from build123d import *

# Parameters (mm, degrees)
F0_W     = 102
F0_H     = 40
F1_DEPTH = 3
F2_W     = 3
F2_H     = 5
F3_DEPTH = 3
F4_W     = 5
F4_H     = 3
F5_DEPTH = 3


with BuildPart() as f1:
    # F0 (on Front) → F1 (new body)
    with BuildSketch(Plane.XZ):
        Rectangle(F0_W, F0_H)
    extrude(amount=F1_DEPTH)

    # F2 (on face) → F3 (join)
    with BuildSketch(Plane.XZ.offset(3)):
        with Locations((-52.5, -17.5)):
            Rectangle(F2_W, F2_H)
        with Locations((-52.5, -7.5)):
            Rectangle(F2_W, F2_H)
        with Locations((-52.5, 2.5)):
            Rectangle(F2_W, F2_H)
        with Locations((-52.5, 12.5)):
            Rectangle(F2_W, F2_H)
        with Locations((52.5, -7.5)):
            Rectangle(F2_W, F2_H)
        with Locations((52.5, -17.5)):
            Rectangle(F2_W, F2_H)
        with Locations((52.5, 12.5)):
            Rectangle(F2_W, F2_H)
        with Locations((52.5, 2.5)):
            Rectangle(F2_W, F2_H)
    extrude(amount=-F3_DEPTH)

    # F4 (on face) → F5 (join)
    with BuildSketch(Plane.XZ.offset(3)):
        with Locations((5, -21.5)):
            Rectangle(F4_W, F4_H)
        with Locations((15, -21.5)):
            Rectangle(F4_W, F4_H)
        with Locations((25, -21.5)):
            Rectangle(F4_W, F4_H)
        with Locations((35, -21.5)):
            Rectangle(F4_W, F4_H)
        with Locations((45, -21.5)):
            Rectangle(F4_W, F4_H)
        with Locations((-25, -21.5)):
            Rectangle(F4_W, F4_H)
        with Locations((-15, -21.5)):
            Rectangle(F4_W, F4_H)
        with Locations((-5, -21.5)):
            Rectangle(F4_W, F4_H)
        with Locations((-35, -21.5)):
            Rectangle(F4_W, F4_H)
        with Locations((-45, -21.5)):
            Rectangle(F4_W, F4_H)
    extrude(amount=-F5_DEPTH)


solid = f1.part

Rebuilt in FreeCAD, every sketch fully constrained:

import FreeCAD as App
import Part
import Sketcher
from FreeCAD import Vector

doc = App.newDocument("Part")
body = doc.addObject("PartDesign::Body", "Body")

# Sketch on XZ plane
sketch1 = body.newObject("Sketcher::SketchObject", "Sketch")
sketch1.AttachmentSupport = (doc.getObject("XZ_Plane"), [""])
sketch1.MapMode = "FlatFace"
sketch1.addGeometry([
    Part.LineSegment(Vector(-51, 20, 0), Vector(-51, -20, 0)),
    Part.LineSegment(Vector(-51, -20, 0), Vector(51, -20, 0)),
    Part.LineSegment(Vector(51, -20, 0), Vector(51, 20, 0)),
    Part.LineSegment(Vector(51, 20, 0), Vector(-51, 20, 0)),
], False)
sketch1.addConstraint([
    Sketcher.Constraint("Coincident", 0, 2, 1, 1),
    Sketcher.Constraint("Coincident", 1, 2, 2, 1),
    Sketcher.Constraint("Coincident", 2, 2, 3, 1),
    Sketcher.Constraint("Coincident", 3, 2, 0, 1),
    Sketcher.Constraint("Vertical", 0),
    Sketcher.Constraint("Horizontal", 1),
    Sketcher.Constraint("Vertical", 2),
    Sketcher.Constraint("Horizontal", 3),
    Sketcher.Constraint("Symmetric", 0, 2, 2, 2, -1, 1),
    Sketcher.Constraint("DistanceX", 1, 1, 1, 2, 102.0),
    Sketcher.Constraint("DistanceY", 0, 2, 0, 1, 40.0),
])
pad1 = body.newObject("PartDesign::Pad", "Pad")
pad1.Profile = sketch1
pad1.Length = 3

# Sketch on XZ plane
sketch2 = body.newObject("Sketcher::SketchObject", "Sketch001")
sketch2.AttachmentSupport = (doc.getObject("XZ_Plane"), [""])
sketch2.MapMode = "FlatFace"
sketch2.AttachmentOffset = App.Placement(Vector(0, 0, 3), App.Rotation())
sketch2.addGeometry([
    Part.LineSegment(Vector(-54, -15, 0), Vector(-54, -20, 0)),  # 0
    Part.LineSegment(Vector(-54, -20, 0), Vector(-51, -20, 0)),  # 1
    Part.LineSegment(Vector(-51, -20, 0), Vector(-51, -15, 0)),  # 2
    Part.LineSegment(Vector(-51, -15, 0), Vector(-54, -15, 0)),  # 3
    Part.LineSegment(Vector(-54, -5, 0), Vector(-54, -10, 0)),  # 4
    Part.LineSegment(Vector(-54, -10, 0), Vector(-51, -10, 0)),  # 5
    Part.LineSegment(Vector(-51, -10, 0), Vector(-51, -5, 0)),  # 6
    Part.LineSegment(Vector(-51, -5, 0), Vector(-54, -5, 0)),  # 7
    Part.LineSegment(Vector(-54, 5, 0), Vector(-54, 0, 0)),  # 8
    Part.LineSegment(Vector(-54, 0, 0), Vector(-51, 0, 0)),  # 9
    Part.LineSegment(Vector(-51, 0, 0), Vector(-51, 5, 0)),  # 10
    Part.LineSegment(Vector(-51, 5, 0), Vector(-54, 5, 0)),  # 11
    Part.LineSegment(Vector(-54, 15, 0), Vector(-54, 10, 0)),  # 12
    Part.LineSegment(Vector(-54, 10, 0), Vector(-51, 10, 0)),  # 13
    Part.LineSegment(Vector(-51, 10, 0), Vector(-51, 15, 0)),  # 14
    Part.LineSegment(Vector(-51, 15, 0), Vector(-54, 15, 0)),  # 15
    Part.LineSegment(Vector(51, -5, 0), Vector(51, -10, 0)),  # 16
    Part.LineSegment(Vector(51, -10, 0), Vector(54, -10, 0)),  # 17
    Part.LineSegment(Vector(54, -10, 0), Vector(54, -5, 0)),  # 18
    Part.LineSegment(Vector(54, -5, 0), Vector(51, -5, 0)),  # 19
    Part.LineSegment(Vector(51, -15, 0), Vector(51, -20, 0)),  # 20
    Part.LineSegment(Vector(51, -20, 0), Vector(54, -20, 0)),  # 21
    Part.LineSegment(Vector(54, -20, 0), Vector(54, -15, 0)),  # 22
    Part.LineSegment(Vector(54, -15, 0), Vector(51, -15, 0)),  # 23
    Part.LineSegment(Vector(51, 15, 0), Vector(51, 10, 0)),  # 24
    Part.LineSegment(Vector(51, 10, 0), Vector(54, 10, 0)),  # 25
    Part.LineSegment(Vector(54, 10, 0), Vector(54, 15, 0)),  # 26
    Part.LineSegment(Vector(54, 15, 0), Vector(51, 15, 0)),  # 27
    Part.LineSegment(Vector(51, 5, 0), Vector(51, 0, 0)),  # 28
    Part.LineSegment(Vector(51, 0, 0), Vector(54, 0, 0)),  # 29
    Part.LineSegment(Vector(54, 0, 0), Vector(54, 5, 0)),  # 30
    Part.LineSegment(Vector(54, 5, 0), Vector(51, 5, 0)),  # 31
], False)
sketch2.addConstraint([
    Sketcher.Constraint("Coincident", 0, 2, 1, 1),
    Sketcher.Constraint("Coincident", 1, 2, 2, 1),
    Sketcher.Constraint("Coincident", 2, 2, 3, 1),
    Sketcher.Constraint("Coincident", 3, 2, 0, 1),
    Sketcher.Constraint("Coincident", 4, 2, 5, 1),
    Sketcher.Constraint("Coincident", 5, 2, 6, 1),
    Sketcher.Constraint("Coincident", 6, 2, 7, 1),
    Sketcher.Constraint("Coincident", 7, 2, 4, 1),
    Sketcher.Constraint("Coincident", 8, 2, 9, 1),
    Sketcher.Constraint("Coincident", 9, 2, 10, 1),
    Sketcher.Constraint("Coincident", 10, 2, 11, 1),
    Sketcher.Constraint("Coincident", 11, 2, 8, 1),
    Sketcher.Constraint("Coincident", 12, 2, 13, 1),
    Sketcher.Constraint("Coincident", 13, 2, 14, 1),
    Sketcher.Constraint("Coincident", 14, 2, 15, 1),
    Sketcher.Constraint("Coincident", 15, 2, 12, 1),
    Sketcher.Constraint("Coincident", 16, 2, 17, 1),
    Sketcher.Constraint("Coincident", 17, 2, 18, 1),
    Sketcher.Constraint("Coincident", 18, 2, 19, 1),
    Sketcher.Constraint("Coincident", 19, 2, 16, 1),
    Sketcher.Constraint("Coincident", 20, 2, 21, 1),
    Sketcher.Constraint("Coincident", 21, 2, 22, 1),
    Sketcher.Constraint("Coincident", 22, 2, 23, 1),
    Sketcher.Constraint("Coincident", 23, 2, 20, 1),
    Sketcher.Constraint("Coincident", 24, 2, 25, 1),
    Sketcher.Constraint("Coincident", 25, 2, 26, 1),
    Sketcher.Constraint("Coincident", 26, 2, 27, 1),
    Sketcher.Constraint("Coincident", 27, 2, 24, 1),
    Sketcher.Constraint("Coincident", 28, 2, 29, 1),
    Sketcher.Constraint("Coincident", 29, 2, 30, 1),
    Sketcher.Constraint("Coincident", 30, 2, 31, 1),
    Sketcher.Constraint("Coincident", 31, 2, 28, 1),
    Sketcher.Constraint("Vertical", 0),
    Sketcher.Constraint("Horizontal", 1),
    Sketcher.Constraint("Vertical", 2),
    Sketcher.Constraint("Horizontal", 3),
    Sketcher.Constraint("Vertical", 4),
    Sketcher.Constraint("Horizontal", 5),
    Sketcher.Constraint("Vertical", 6),
    Sketcher.Constraint("Horizontal", 7),
    Sketcher.Constraint("Vertical", 8),
    Sketcher.Constraint("Horizontal", 9),
    Sketcher.Constraint("Vertical", 10),
    Sketcher.Constraint("Horizontal", 11),
    Sketcher.Constraint("Vertical", 12),
    Sketcher.Constraint("Horizontal", 13),
    Sketcher.Constraint("Vertical", 14),
    Sketcher.Constraint("Horizontal", 15),
    Sketcher.Constraint("Vertical", 16),
    Sketcher.Constraint("Horizontal", 17),
    Sketcher.Constraint("Vertical", 18),
    Sketcher.Constraint("Horizontal", 19),
    Sketcher.Constraint("Vertical", 20),
    Sketcher.Constraint("Horizontal", 21),
    Sketcher.Constraint("Vertical", 22),
    Sketcher.Constraint("Horizontal", 23),
    Sketcher.Constraint("Vertical", 24),
    Sketcher.Constraint("Horizontal", 25),
    Sketcher.Constraint("Vertical", 26),
    Sketcher.Constraint("Horizontal", 27),
    Sketcher.Constraint("Vertical", 28),
    Sketcher.Constraint("Horizontal", 29),
    Sketcher.Constraint("Vertical", 30),
    Sketcher.Constraint("Horizontal", 31),
    Sketcher.Constraint("Symmetric", 13, 2, 16, 2, -1, 1),
    Sketcher.Constraint("Symmetric", 11, 2, 18, 2, -1, 1),
    Sketcher.Constraint("Symmetric", 15, 2, 22, 2, -1, 1),
    Sketcher.Constraint("Symmetric", 5, 2, 24, 2, -1, 1),
    Sketcher.Constraint("Symmetric", 3, 2, 26, 2, -1, 1),
    Sketcher.Constraint("Symmetric", 9, 2, 28, 2, -1, 1),
    Sketcher.Constraint("Symmetric", 7, 2, 30, 2, -1, 1),
    Sketcher.Constraint("Symmetric", 5, 2, 16, 2, -2),
    Sketcher.Constraint("Symmetric", 7, 2, 18, 2, -2),
    Sketcher.Constraint("Symmetric", 1, 2, 20, 2, -2),
    Sketcher.Constraint("Symmetric", 3, 2, 22, 2, -2),
    Sketcher.Constraint("PointOnObject", 8, 2, -1),
    Sketcher.Constraint("Vertical", 3, 2, 4, 2),
    Sketcher.Constraint("Vertical", 2, 2, 5, 2),
    Sketcher.Constraint("Vertical", 6, 2, 9, 2),
    Sketcher.Constraint("Equal", 2, 4),
    Sketcher.Constraint("Equal", 6, 8),
    Sketcher.Constraint("Equal", 10, 12),
    Sketcher.Constraint("DistanceX", 1, 1, 1, 2, 3.0),
    Sketcher.Constraint("DistanceY", 0, 2, 0, 1, 5.0),
    Sketcher.Constraint("DistanceX", 0, 2, -1, 1, 54.0),
])
pad2 = body.newObject("PartDesign::Pad", "Pad001")
pad2.Profile = sketch2
pad2.Length = 3
pad2.Reversed = True

# Sketch on XZ plane
sketch3 = body.newObject("Sketcher::SketchObject", "Sketch002")
sketch3.AttachmentSupport = (doc.getObject("XZ_Plane"), [""])
sketch3.MapMode = "FlatFace"
sketch3.AttachmentOffset = App.Placement(Vector(0, 0, 3), App.Rotation())
sketch3.addGeometry([
    Part.LineSegment(Vector(2.5, -20, 0), Vector(2.5, -23, 0)),  # 0
    Part.LineSegment(Vector(2.5, -23, 0), Vector(7.5, -23, 0)),  # 1
    Part.LineSegment(Vector(7.5, -23, 0), Vector(7.5, -20, 0)),  # 2
    Part.LineSegment(Vector(7.5, -20, 0), Vector(2.5, -20, 0)),  # 3
    Part.LineSegment(Vector(12.5, -20, 0), Vector(12.5, -23, 0)),  # 4
    Part.LineSegment(Vector(12.5, -23, 0), Vector(17.5, -23, 0)),  # 5
    Part.LineSegment(Vector(17.5, -23, 0), Vector(17.5, -20, 0)),  # 6
    Part.LineSegment(Vector(17.5, -20, 0), Vector(12.5, -20, 0)),  # 7
    Part.LineSegment(Vector(22.5, -20, 0), Vector(22.5, -23, 0)),  # 8
    Part.LineSegment(Vector(22.5, -23, 0), Vector(27.5, -23, 0)),  # 9
    Part.LineSegment(Vector(27.5, -23, 0), Vector(27.5, -20, 0)),  # 10
    Part.LineSegment(Vector(27.5, -20, 0), Vector(22.5, -20, 0)),  # 11
    Part.LineSegment(Vector(32.5, -20, 0), Vector(32.5, -23, 0)),  # 12
    Part.LineSegment(Vector(32.5, -23, 0), Vector(37.5, -23, 0)),  # 13
    Part.LineSegment(Vector(37.5, -23, 0), Vector(37.5, -20, 0)),  # 14
    Part.LineSegment(Vector(37.5, -20, 0), Vector(32.5, -20, 0)),  # 15
    Part.LineSegment(Vector(42.5, -20, 0), Vector(42.5, -23, 0)),  # 16
    Part.LineSegment(Vector(42.5, -23, 0), Vector(47.5, -23, 0)),  # 17
    Part.LineSegment(Vector(47.5, -23, 0), Vector(47.5, -20, 0)),  # 18
    Part.LineSegment(Vector(47.5, -20, 0), Vector(42.5, -20, 0)),  # 19
    Part.LineSegment(Vector(-27.5, -20, 0), Vector(-27.5, -23, 0)),  # 20
    Part.LineSegment(Vector(-27.5, -23, 0), Vector(-22.5, -23, 0)),  # 21
    Part.LineSegment(Vector(-22.5, -23, 0), Vector(-22.5, -20, 0)),  # 22
    Part.LineSegment(Vector(-22.5, -20, 0), Vector(-27.5, -20, 0)),  # 23
    Part.LineSegment(Vector(-17.5, -20, 0), Vector(-17.5, -23, 0)),  # 24
    Part.LineSegment(Vector(-17.5, -23, 0), Vector(-12.5, -23, 0)),  # 25
    Part.LineSegment(Vector(-12.5, -23, 0), Vector(-12.5, -20, 0)),  # 26
    Part.LineSegment(Vector(-12.5, -20, 0), Vector(-17.5, -20, 0)),  # 27
    Part.LineSegment(Vector(-7.5, -20, 0), Vector(-7.5, -23, 0)),  # 28
    Part.LineSegment(Vector(-7.5, -23, 0), Vector(-2.5, -23, 0)),  # 29
    Part.LineSegment(Vector(-2.5, -23, 0), Vector(-2.5, -20, 0)),  # 30
    Part.LineSegment(Vector(-2.5, -20, 0), Vector(-7.5, -20, 0)),  # 31
    Part.LineSegment(Vector(-37.5, -20, 0), Vector(-37.5, -23, 0)),  # 32
    Part.LineSegment(Vector(-37.5, -23, 0), Vector(-32.5, -23, 0)),  # 33
    Part.LineSegment(Vector(-32.5, -23, 0), Vector(-32.5, -20, 0)),  # 34
    Part.LineSegment(Vector(-32.5, -20, 0), Vector(-37.5, -20, 0)),  # 35
    Part.LineSegment(Vector(-47.5, -20, 0), Vector(-47.5, -23, 0)),  # 36
    Part.LineSegment(Vector(-47.5, -23, 0), Vector(-42.5, -23, 0)),  # 37
    Part.LineSegment(Vector(-42.5, -23, 0), Vector(-42.5, -20, 0)),  # 38
    Part.LineSegment(Vector(-42.5, -20, 0), Vector(-47.5, -20, 0)),  # 39
], False)
sketch3.addConstraint([
    Sketcher.Constraint("Coincident", 0, 2, 1, 1),
    Sketcher.Constraint("Coincident", 1, 2, 2, 1),
    Sketcher.Constraint("Coincident", 2, 2, 3, 1),
    Sketcher.Constraint("Coincident", 3, 2, 0, 1),
    Sketcher.Constraint("Coincident", 4, 2, 5, 1),
    Sketcher.Constraint("Coincident", 5, 2, 6, 1),
    Sketcher.Constraint("Coincident", 6, 2, 7, 1),
    Sketcher.Constraint("Coincident", 7, 2, 4, 1),
    Sketcher.Constraint("Coincident", 8, 2, 9, 1),
    Sketcher.Constraint("Coincident", 9, 2, 10, 1),
    Sketcher.Constraint("Coincident", 10, 2, 11, 1),
    Sketcher.Constraint("Coincident", 11, 2, 8, 1),
    Sketcher.Constraint("Coincident", 12, 2, 13, 1),
    Sketcher.Constraint("Coincident", 13, 2, 14, 1),
    Sketcher.Constraint("Coincident", 14, 2, 15, 1),
    Sketcher.Constraint("Coincident", 15, 2, 12, 1),
    Sketcher.Constraint("Coincident", 16, 2, 17, 1),
    Sketcher.Constraint("Coincident", 17, 2, 18, 1),
    Sketcher.Constraint("Coincident", 18, 2, 19, 1),
    Sketcher.Constraint("Coincident", 19, 2, 16, 1),
    Sketcher.Constraint("Coincident", 20, 2, 21, 1),
    Sketcher.Constraint("Coincident", 21, 2, 22, 1),
    Sketcher.Constraint("Coincident", 22, 2, 23, 1),
    Sketcher.Constraint("Coincident", 23, 2, 20, 1),
    Sketcher.Constraint("Coincident", 24, 2, 25, 1),
    Sketcher.Constraint("Coincident", 25, 2, 26, 1),
    Sketcher.Constraint("Coincident", 26, 2, 27, 1),
    Sketcher.Constraint("Coincident", 27, 2, 24, 1),
    Sketcher.Constraint("Coincident", 28, 2, 29, 1),
    Sketcher.Constraint("Coincident", 29, 2, 30, 1),
    Sketcher.Constraint("Coincident", 30, 2, 31, 1),
    Sketcher.Constraint("Coincident", 31, 2, 28, 1),
    Sketcher.Constraint("Coincident", 32, 2, 33, 1),
    Sketcher.Constraint("Coincident", 33, 2, 34, 1),
    Sketcher.Constraint("Coincident", 34, 2, 35, 1),
    Sketcher.Constraint("Coincident", 35, 2, 32, 1),
    Sketcher.Constraint("Coincident", 36, 2, 37, 1),
    Sketcher.Constraint("Coincident", 37, 2, 38, 1),
    Sketcher.Constraint("Coincident", 38, 2, 39, 1),
    Sketcher.Constraint("Coincident", 39, 2, 36, 1),
    Sketcher.Constraint("Vertical", 0),
    Sketcher.Constraint("Horizontal", 1),
    Sketcher.Constraint("Vertical", 2),
    Sketcher.Constraint("Horizontal", 3),
    Sketcher.Constraint("Vertical", 4),
    Sketcher.Constraint("Horizontal", 5),
    Sketcher.Constraint("Vertical", 6),
    Sketcher.Constraint("Horizontal", 7),
    Sketcher.Constraint("Vertical", 8),
    Sketcher.Constraint("Horizontal", 9),
    Sketcher.Constraint("Vertical", 10),
    Sketcher.Constraint("Horizontal", 11),
    Sketcher.Constraint("Vertical", 12),
    Sketcher.Constraint("Horizontal", 13),
    Sketcher.Constraint("Vertical", 14),
    Sketcher.Constraint("Horizontal", 15),
    Sketcher.Constraint("Vertical", 16),
    Sketcher.Constraint("Horizontal", 17),
    Sketcher.Constraint("Vertical", 18),
    Sketcher.Constraint("Horizontal", 19),
    Sketcher.Constraint("Vertical", 20),
    Sketcher.Constraint("Horizontal", 21),
    Sketcher.Constraint("Vertical", 22),
    Sketcher.Constraint("Horizontal", 23),
    Sketcher.Constraint("Vertical", 24),
    Sketcher.Constraint("Horizontal", 25),
    Sketcher.Constraint("Vertical", 26),
    Sketcher.Constraint("Horizontal", 27),
    Sketcher.Constraint("Vertical", 28),
    Sketcher.Constraint("Horizontal", 29),
    Sketcher.Constraint("Vertical", 30),
    Sketcher.Constraint("Horizontal", 31),
    Sketcher.Constraint("Vertical", 32),
    Sketcher.Constraint("Horizontal", 33),
    Sketcher.Constraint("Vertical", 34),
    Sketcher.Constraint("Horizontal", 35),
    Sketcher.Constraint("Vertical", 36),
    Sketcher.Constraint("Horizontal", 37),
    Sketcher.Constraint("Vertical", 38),
    Sketcher.Constraint("Horizontal", 39),
    Sketcher.Constraint("Symmetric", 9, 2, 20, 2, -2),
    Sketcher.Constraint("Symmetric", 11, 2, 22, 2, -2),
    Sketcher.Constraint("Symmetric", 5, 2, 24, 2, -2),
    Sketcher.Constraint("Symmetric", 7, 2, 26, 2, -2),
    Sketcher.Constraint("Symmetric", 1, 2, 28, 2, -2),
    Sketcher.Constraint("Symmetric", 3, 2, 30, 2, -2),
    Sketcher.Constraint("Symmetric", 13, 2, 32, 2, -2),
    Sketcher.Constraint("Symmetric", 15, 2, 34, 2, -2),
    Sketcher.Constraint("Symmetric", 17, 2, 36, 2, -2),
    Sketcher.Constraint("Symmetric", 19, 2, 38, 2, -2),
    Sketcher.Constraint("Horizontal", 1, 2, 4, 2),
    Sketcher.Constraint("Horizontal", 3, 2, 6, 2),
    Sketcher.Constraint("Horizontal", 5, 2, 8, 2),
    Sketcher.Constraint("Horizontal", 7, 2, 10, 2),
    Sketcher.Constraint("Horizontal", 9, 2, 12, 2),
    Sketcher.Constraint("Horizontal", 11, 2, 14, 2),
    Sketcher.Constraint("Horizontal", 13, 2, 16, 2),
    Sketcher.Constraint("Horizontal", 15, 2, 18, 2),
    Sketcher.Constraint("Equal", 3, 5),
    Sketcher.Constraint("Equal", 7, 9),
    Sketcher.Constraint("Equal", 11, 13),
    Sketcher.Constraint("Equal", 15, 17),
    Sketcher.Constraint("DistanceX", 1, 1, 1, 2, 5.0),
    Sketcher.Constraint("DistanceY", 0, 2, 0, 1, 3.0),
    Sketcher.Constraint("DistanceY", 0, 2, -1, 1, 23.0),
    Sketcher.Constraint("DistanceX", 1, 2, 4, 2, 5.0),
    Sketcher.Constraint("DistanceX", 5, 2, 8, 2, 5.0),
    Sketcher.Constraint("DistanceX", 9, 2, 12, 2, 5.0),
    Sketcher.Constraint("DistanceX", 13, 2, 16, 2, 5.0),
    Sketcher.Constraint("DistanceX", 20, 2, 0, 2, 30.0),
])
pad3 = body.newObject("PartDesign::Pad", "Pad002")
pad3.Profile = sketch3
pad3.Length = 3
pad3.Reversed = True

doc.recompute()
